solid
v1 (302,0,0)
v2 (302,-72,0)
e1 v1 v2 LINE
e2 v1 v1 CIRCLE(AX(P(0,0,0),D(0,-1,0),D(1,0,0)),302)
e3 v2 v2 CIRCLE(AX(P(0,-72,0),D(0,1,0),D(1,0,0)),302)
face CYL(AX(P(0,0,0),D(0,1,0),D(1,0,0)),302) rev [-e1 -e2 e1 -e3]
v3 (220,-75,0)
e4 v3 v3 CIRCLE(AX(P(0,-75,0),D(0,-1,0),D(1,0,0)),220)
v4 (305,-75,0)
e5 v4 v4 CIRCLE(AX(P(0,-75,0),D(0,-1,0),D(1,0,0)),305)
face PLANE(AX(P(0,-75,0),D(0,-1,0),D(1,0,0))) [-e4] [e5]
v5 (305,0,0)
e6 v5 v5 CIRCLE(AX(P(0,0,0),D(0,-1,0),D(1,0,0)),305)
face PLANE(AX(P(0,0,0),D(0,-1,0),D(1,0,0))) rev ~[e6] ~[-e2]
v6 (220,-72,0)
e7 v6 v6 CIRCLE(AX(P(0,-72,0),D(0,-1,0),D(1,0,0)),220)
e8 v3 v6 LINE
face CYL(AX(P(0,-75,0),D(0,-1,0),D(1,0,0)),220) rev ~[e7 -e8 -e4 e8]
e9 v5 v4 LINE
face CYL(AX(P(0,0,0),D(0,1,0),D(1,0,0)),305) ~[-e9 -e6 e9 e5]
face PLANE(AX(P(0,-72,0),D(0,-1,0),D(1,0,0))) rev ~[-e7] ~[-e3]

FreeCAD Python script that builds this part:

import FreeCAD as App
import Part
import Sketcher
from FreeCAD import Vector


def faces_at(feature, points):
    """Names of the faces that lie closest to the given points."""
    faces = feature.Shape.Faces
    near = lambda p: min(range(len(faces)), key=lambda i: faces[i].distToShape(Part.Vertex(*p))[0])
    return sorted({f"Face{near(p) + 1}" for p in points})

doc = App.newDocument("Part")
body = doc.addObject("PartDesign::Body", "Body")

# Sketch on XZ plane
sketch1 = body.newObject("Sketcher::SketchObject", "Sketch")
sketch1.AttachmentSupport = (doc.getObject("XZ_Plane"), [""])
sketch1.MapMode = "FlatFace"
sketch1.addGeometry(Part.Circle(Vector(0, 0, 0), Vector(0, 0, 1), 305), False)
sketch1.addConstraint([
    Sketcher.Constraint("Coincident", 0, 3, -1, 1),
    Sketcher.Constraint("Diameter", 0, 610.0),
])
pad1 = body.newObject("PartDesign::Pad", "Pad")
pad1.Profile = sketch1
pad1.Length = 75
doc.recompute()

thickness = body.newObject("PartDesign::Thickness", "Thickness")
thickness.Base = (pad1, faces_at(pad1, [(0, 0, 0)]))
thickness.Value = 3
thickness.Reversed = True
thickness.Join = "Arc"

# Sketch on XZ plane
sketch2 = body.newObject("Sketcher::SketchObject", "Sketch001")
sketch2.AttachmentSupport = (doc.getObject("XZ_Plane"), [""])
sketch2.MapMode = "FlatFace"
sketch2.AttachmentOffset = App.Placement(Vector(0, 0, 75), App.Rotation())
sketch2.addGeometry(Part.Circle(Vector(0, 0, 0), Vector(0, 0, 1), 220), False)
sketch2.addConstraint([
    Sketcher.Constraint("Coincident", 0, 3, -1, 1),
    Sketcher.Constraint("Diameter", 0, 440.0),
])
pocket1 = body.newObject("PartDesign::Pocket", "Pocket")
pocket1.Profile = sketch2
pocket1.Type = "ThroughAll"

doc.recompute()
